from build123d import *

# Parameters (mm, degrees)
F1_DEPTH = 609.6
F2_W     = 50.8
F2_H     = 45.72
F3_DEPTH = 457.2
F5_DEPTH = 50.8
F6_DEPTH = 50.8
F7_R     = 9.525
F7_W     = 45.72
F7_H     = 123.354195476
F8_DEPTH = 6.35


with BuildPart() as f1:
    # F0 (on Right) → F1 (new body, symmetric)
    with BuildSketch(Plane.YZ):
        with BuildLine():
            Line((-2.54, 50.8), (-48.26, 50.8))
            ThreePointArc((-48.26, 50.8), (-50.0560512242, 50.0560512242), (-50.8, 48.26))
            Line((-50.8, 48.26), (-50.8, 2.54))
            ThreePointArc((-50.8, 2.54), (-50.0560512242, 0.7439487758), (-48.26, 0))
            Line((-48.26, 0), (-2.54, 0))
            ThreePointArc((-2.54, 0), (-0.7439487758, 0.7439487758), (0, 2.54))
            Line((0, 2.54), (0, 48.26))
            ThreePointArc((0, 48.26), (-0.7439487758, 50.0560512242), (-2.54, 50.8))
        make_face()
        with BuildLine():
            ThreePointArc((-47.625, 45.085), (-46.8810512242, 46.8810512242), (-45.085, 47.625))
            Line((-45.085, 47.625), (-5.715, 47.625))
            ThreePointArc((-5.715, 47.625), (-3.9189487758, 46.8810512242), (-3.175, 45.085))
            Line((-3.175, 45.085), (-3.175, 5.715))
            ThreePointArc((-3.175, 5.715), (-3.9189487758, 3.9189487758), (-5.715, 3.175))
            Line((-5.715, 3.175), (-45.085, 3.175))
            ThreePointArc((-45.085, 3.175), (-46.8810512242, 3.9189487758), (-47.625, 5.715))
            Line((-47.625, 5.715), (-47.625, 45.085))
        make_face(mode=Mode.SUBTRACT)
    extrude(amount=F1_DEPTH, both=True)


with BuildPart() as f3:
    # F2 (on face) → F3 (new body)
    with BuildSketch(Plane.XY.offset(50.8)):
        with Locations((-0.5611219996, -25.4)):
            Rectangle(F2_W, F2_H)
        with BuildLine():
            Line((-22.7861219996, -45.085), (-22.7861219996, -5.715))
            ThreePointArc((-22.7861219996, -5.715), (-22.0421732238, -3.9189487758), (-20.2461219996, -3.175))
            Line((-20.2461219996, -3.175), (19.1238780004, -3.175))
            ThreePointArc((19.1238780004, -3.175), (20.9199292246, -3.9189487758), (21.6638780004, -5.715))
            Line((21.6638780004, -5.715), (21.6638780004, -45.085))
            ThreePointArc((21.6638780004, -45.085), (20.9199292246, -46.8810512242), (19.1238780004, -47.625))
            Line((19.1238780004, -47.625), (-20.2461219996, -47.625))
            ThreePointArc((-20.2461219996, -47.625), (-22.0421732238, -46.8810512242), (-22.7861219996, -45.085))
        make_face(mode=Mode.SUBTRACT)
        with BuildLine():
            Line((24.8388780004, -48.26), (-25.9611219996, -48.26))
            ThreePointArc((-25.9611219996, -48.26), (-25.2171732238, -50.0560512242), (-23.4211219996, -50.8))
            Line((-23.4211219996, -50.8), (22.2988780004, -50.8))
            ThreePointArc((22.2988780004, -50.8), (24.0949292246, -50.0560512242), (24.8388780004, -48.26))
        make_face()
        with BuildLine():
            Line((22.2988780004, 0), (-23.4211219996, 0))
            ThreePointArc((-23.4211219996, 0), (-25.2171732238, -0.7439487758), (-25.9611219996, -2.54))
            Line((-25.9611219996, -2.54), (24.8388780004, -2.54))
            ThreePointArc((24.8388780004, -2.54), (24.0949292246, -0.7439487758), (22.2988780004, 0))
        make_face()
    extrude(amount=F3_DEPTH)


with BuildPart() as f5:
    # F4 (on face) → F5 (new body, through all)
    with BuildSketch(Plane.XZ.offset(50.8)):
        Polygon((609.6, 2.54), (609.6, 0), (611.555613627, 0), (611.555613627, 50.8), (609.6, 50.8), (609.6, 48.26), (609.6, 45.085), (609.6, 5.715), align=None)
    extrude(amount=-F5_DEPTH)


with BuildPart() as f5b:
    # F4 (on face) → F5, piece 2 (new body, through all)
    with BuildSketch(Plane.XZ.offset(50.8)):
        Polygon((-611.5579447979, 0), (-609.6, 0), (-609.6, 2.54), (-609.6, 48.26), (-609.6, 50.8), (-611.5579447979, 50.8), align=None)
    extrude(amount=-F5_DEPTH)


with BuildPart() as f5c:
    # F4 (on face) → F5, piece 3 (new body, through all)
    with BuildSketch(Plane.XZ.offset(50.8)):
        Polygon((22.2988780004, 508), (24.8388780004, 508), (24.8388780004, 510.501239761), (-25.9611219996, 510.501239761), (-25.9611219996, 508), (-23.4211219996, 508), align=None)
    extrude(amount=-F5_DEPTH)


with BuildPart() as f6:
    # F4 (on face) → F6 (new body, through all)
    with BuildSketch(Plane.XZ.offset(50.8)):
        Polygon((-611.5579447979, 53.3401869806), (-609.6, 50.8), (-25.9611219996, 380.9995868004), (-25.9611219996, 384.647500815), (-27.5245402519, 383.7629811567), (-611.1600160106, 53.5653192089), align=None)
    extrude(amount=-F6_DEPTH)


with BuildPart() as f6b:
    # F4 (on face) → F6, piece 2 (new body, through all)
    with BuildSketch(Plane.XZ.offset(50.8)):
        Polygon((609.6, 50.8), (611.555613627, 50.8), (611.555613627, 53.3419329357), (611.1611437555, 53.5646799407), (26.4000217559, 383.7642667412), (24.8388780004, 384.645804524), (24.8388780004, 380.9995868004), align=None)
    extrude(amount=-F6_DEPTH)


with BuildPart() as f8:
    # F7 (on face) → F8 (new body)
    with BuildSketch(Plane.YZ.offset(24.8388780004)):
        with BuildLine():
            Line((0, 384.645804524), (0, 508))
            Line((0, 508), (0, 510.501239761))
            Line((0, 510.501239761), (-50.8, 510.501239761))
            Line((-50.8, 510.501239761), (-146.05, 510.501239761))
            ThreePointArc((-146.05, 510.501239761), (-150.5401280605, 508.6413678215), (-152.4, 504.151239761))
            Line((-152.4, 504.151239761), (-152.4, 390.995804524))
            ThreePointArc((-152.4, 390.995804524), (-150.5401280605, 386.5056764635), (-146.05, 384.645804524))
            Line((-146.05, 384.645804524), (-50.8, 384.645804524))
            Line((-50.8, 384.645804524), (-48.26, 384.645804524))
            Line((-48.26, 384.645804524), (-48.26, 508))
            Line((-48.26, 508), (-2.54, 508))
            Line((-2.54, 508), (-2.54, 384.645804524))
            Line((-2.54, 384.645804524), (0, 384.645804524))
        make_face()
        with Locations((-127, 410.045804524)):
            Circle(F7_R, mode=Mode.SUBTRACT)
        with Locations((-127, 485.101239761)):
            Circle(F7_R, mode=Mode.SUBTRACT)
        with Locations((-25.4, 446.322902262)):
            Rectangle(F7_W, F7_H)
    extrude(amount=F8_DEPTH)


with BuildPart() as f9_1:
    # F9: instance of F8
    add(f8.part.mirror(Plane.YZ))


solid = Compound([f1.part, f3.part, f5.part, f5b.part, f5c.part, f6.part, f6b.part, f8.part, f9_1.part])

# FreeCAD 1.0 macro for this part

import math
import FreeCAD as App
import Part
import Sketcher
Q = App.Units.Quantity

doc = App.newDocument("Part")
body = doc.addObject("PartDesign::Body", "Body")

sketch1 = body.newObject("Sketcher::SketchObject", "Sketch")
sketch1.AttachmentSupport = (doc.getObject("YZ_Plane"), [""])
sketch1.MapMode = "FlatFace"
sketch1.addGeometry([
    Part.LineSegment(App.Vector(-2.5, 50.8, 0), App.Vector(-48.3, 50.8, 0)),
    Part.ArcOfCircle(Part.Circle(App.Vector(-48.3, 48.3, 0), App.Vector(0, 0, 1), 2.5), math.radians(90), math.radians(180)),
    Part.LineSegment(App.Vector(-50.8, 48.3, 0), App.Vector(-50.8, 2.5, 0)),
    Part.ArcOfCircle(Part.Circle(App.Vector(-48.3, 2.5, 0), App.Vector(0, 0, 1), 2.5), math.radians(180), math.radians(270)),
    Part.LineSegment(App.Vector(-48.3, 0, 0), App.Vector(-2.5, 0, 0)),
    Part.ArcOfCircle(Part.Circle(App.Vector(-2.5, 2.5, 0), App.Vector(0, 0, 1), 2.5), math.radians(-90), math.radians(0)),
    Part.LineSegment(App.Vector(0, 2.5, 0), App.Vector(0, 48.3, 0)),
    Part.ArcOfCircle(Part.Circle(App.Vector(-2.5, 48.3, 0), App.Vector(0, 0, 1), 2.5), math.radians(0), math.radians(90)),
    Part.LineSegment(App.Vector(-47.6, 5.7, 0), App.Vector(-47.6, 45.1, 0)),
    Part.ArcOfCircle(Part.Circle(App.Vector(-45.1, 45.1, 0), App.Vector(0, 0, 1), 2.5), math.radians(90), math.radians(180)),
    Part.LineSegment(App.Vector(-45.1, 47.6, 0), App.Vector(-5.7, 47.6, 0)),
    Part.ArcOfCircle(Part.Circle(App.Vector(-5.7, 45.1, 0), App.Vector(0, 0, 1), 2.5), math.radians(0), math.radians(90)),
    Part.LineSegment(App.Vector(-3.2, 45.1, 0), App.Vector(-3.2, 5.7, 0)),
    Part.ArcOfCircle(Part.Circle(App.Vector(-5.7, 5.7, 0), App.Vector(0, 0, 1), 2.5), math.radians(-90), math.radians(0)),
    Part.LineSegment(App.Vector(-5.7, 3.2, 0), App.Vector(-45.1, 3.2, 0)),
    Part.ArcOfCircle(Part.Circle(App.Vector(-45.1, 5.7, 0), App.Vector(0, 0, 1), 2.5), math.radians(180), math.radians(270)),
], False)
sketch1.addConstraint([
    Sketcher.Constraint("Tangent", 0, 2, 1, 1),
    Sketcher.Constraint("Tangent", 1, 2, 2, 1),
    Sketcher.Constraint("Tangent", 2, 2, 3, 1),
    Sketcher.Constraint("Tangent", 3, 2, 4, 1),
    Sketcher.Constraint("Tangent", 4, 2, 5, 1),
    Sketcher.Constraint("Tangent", 5, 2, 6, 1),
    Sketcher.Constraint("Tangent", 6, 2, 7, 1),
    Sketcher.Constraint("Tangent", 7, 2, 0, 1),
    Sketcher.Constraint("Tangent", 8, 2, 9, 2),
    Sketcher.Constraint("Tangent", 9, 1, 10, 1),
    Sketcher.Constraint("Tangent", 10, 2, 11, 2),
    Sketcher.Constraint("Tangent", 11, 1, 12, 1),
    Sketcher.Constraint("Tangent", 12, 2, 13, 2),
    Sketcher.Constraint("Tangent", 13, 1, 14, 1),
    Sketcher.Constraint("Tangent", 14, 2, 15, 2),
    Sketcher.Constraint("Tangent", 15, 1, 8, 1),
    Sketcher.Constraint("Horizontal", 0),
    Sketcher.Constraint("Vertical", 2),
    Sketcher.Constraint("Horizontal", 4),
    Sketcher.Constraint("Vertical", 6),
    Sketcher.Constraint("Vertical", 8),
    Sketcher.Constraint("Horizontal", 10),
    Sketcher.Constraint("Vertical", 12),
    Sketcher.Constraint("Horizontal", 14),
    Sketcher.Constraint("Equal", 1, 3),
    Sketcher.Constraint("Equal", 3, 5),
    Sketcher.Constraint("Equal", 5, 7),
    Sketcher.Constraint("Equal", 7, 9),
    Sketcher.Constraint("Equal", 9, 11),
    Sketcher.Constraint("Equal", 11, 13),
    Sketcher.Constraint("Equal", 13, 15),
    Sketcher.Constraint("PointOnObject", 3, 2, -1),
    Sketcher.Constraint("PointOnObject", 5, 2, -2),
    Sketcher.Constraint("Equal", 4, 2),
    Sketcher.Constraint("Equal", 14, 8),
    Sketcher.Constraint("Radius", 1, Q("0.1 in")),
    Sketcher.Constraint("DistanceX", 0, 2, 0, 1, Q("1.8 in")),
    Sketcher.Constraint("DistanceX", 10, 1, 10, 2, Q("1.55 in")),
    Sketcher.Constraint("DistanceX", 9, 3, -1, 1, Q("1.775 in")),
    Sketcher.Constraint("DistanceY", -1, 1, 9, 3, Q("1.775 in")),
])
pad1 = body.newObject("PartDesign::Pad", "Pad")
pad1.Profile = sketch1
pad1.Length = Q("48 in")
pad1.Midplane = True
body2 = doc.addObject("PartDesign::Body", "Body001")

sketch2 = body2.newObject("Sketcher::SketchObject", "Sketch001")
sketch2.AttachmentSupport = (doc.getObject("XY_Plane001"), [""])
sketch2.MapMode = "FlatFace"
sketch2.AttachmentOffset = App.Placement(App.Vector(0, 0, 2 * 25.4), App.Rotation())
sketch2.addGeometry([
    Part.LineSegment(App.Vector(-26, -2.5, 0), App.Vector(-26, -48.3, 0)),
    Part.ArcOfCircle(Part.Circle(App.Vector(-23.4, -48.3, 0), App.Vector(0, 0, 1), 2.5), math.radians(180), math.radians(270)),
    Part.LineSegment(App.Vector(-23.4, -50.8, 0), App.Vector(22.3, -50.8, 0)),
    Part.ArcOfCircle(Part.Circle(App.Vector(22.3, -48.3, 0), App.Vector(0, 0, 1), 2.5), math.radians(-90), math.radians(0)),
    Part.LineSegment(App.Vector(24.8, -48.3, 0), App.Vector(24.8, -2.5, 0)),
    Part.ArcOfCircle(Part.Circle(App.Vector(22.3, -2.5, 0), App.Vector(0, 0, 1), 2.5), math.radians(0), math.radians(90)),
    Part.LineSegment(App.Vector(22.3, 0, 0), App.Vector(-23.4, 0, 0)),
    Part.ArcOfCircle(Part.Circle(App.Vector(-23.4, -2.5, 0), App.Vector(0, 0, 1), 2.5), math.radians(90), math.radians(180)),
    Part.ArcOfCircle(Part.Circle(App.Vector(-20.2, -45.1, 0), App.Vector(0, 0, 1), 2.5), math.radians(180), math.radians(270)),
    Part.LineSegment(App.Vector(-22.8, -45.1, 0), App.Vector(-22.8, -5.7, 0)),
    Part.ArcOfCircle(Part.Circle(App.Vector(-20.2, -5.7, 0), App.Vector(0, 0, 1), 2.5), math.radians(90), math.radians(180)),
    Part.LineSegment(App.Vector(-20.2, -3.2, 0), App.Vector(19.1, -3.2, 0)),
    Part.ArcOfCircle(Part.Circle(App.Vector(19.1, -5.7, 0), App.Vector(0, 0, 1), 2.5), math.radians(0), math.radians(90)),
    Part.LineSegment(App.Vector(21.7, -5.7, 0), App.Vector(21.7, -45.1, 0)),
    Part.ArcOfCircle(Part.Circle(App.Vector(19.1, -45.1, 0), App.Vector(0, 0, 1), 2.5), math.radians(-90), math.radians(0)),
    Part.LineSegment(App.Vector(19.1, -47.6, 0), App.Vector(-20.2, -47.6, 0)),
], False)
sketch2.addConstraint([
    Sketcher.Constraint("Tangent", 0, 2, 1, 1),
    Sketcher.Constraint("Tangent", 1, 2, 2, 1),
    Sketcher.Constraint("Tangent", 2, 2, 3, 1),
    Sketcher.Constraint("Tangent", 3, 2, 4, 1),
    Sketcher.Constraint("Tangent", 4, 2, 5, 1),
    Sketcher.Constraint("Tangent", 5, 2, 6, 1),
    Sketcher.Constraint("Tangent", 6, 2, 7, 1),
    Sketcher.Constraint("Tangent", 7, 2, 0, 1),
    Sketcher.Constraint("Tangent", 8, 1, 9, 1),
    Sketcher.Constraint("Tangent", 9, 2, 10, 2),
    Sketcher.Constraint("Tangent", 10, 1, 11, 1),
    Sketcher.Constraint("Tangent", 11, 2, 12, 2),
    Sketcher.Constraint("Tangent", 12, 1, 13, 1),
    Sketcher.Constraint("Tangent", 13, 2, 14, 2),
    Sketcher.Constraint("Tangent", 14, 1, 15, 1),
    Sketcher.Constraint("Tangent", 15, 2, 8, 2),
    Sketcher.Constraint("Vertical", 0),
    Sketcher.Constraint("Horizontal", 2),
    Sketcher.Constraint("Vertical", 4),
    Sketcher.Constraint("Horizontal", 6),
    Sketcher.Constraint("Vertical", 9),
    Sketcher.Constraint("Horizontal", 11),
    Sketcher.Constraint("Vertical", 13),
    Sketcher.Constraint("Horizontal", 15),
    Sketcher.Constraint("Equal", 1, 3),
    Sketcher.Constraint("Equal", 3, 5),
    Sketcher.Constraint("Equal", 5, 7),
    Sketcher.Constraint("Equal", 7, 8),
    Sketcher.Constraint("Equal", 8, 10),
    Sketcher.Constraint("Equal", 10, 12),
    Sketcher.Constraint("Equal", 12, 14),
    Sketcher.Constraint("PointOnObject", 5, 2, -1),
    Sketcher.Constraint("Equal", 6, 0),
    Sketcher.Constraint("Equal", 15, 9),
    Sketcher.Constraint("Radius", 1, Q("0.1 in")),
    Sketcher.Constraint("DistanceX", 2, 1, 2, 2, Q("1.8 in")),
    Sketcher.Constraint("DistanceX", 11, 1, 11, 2, Q("1.55 in")),
    Sketcher.Constraint("DistanceY", 8, 3, -1, 1, Q("1.775 in")),
    Sketcher.Constraint("DistanceX", 1, 3, 8, 3, Q("0.125 in")),
    Sketcher.Constraint("DistanceX", 8, 3, -1, 1, Q("20.246122 mm")),
])
pad2 = body2.newObject("PartDesign::Pad", "Pad001")
pad2.Profile = sketch2
pad2.Length = Q("18 in")
body3 = doc.addObject("PartDesign::Body", "Body002")

sketch3 = body3.newObject("Sketcher::SketchObject", "Sketch002")
sketch3.AttachmentSupport = (doc.getObject("XZ_Plane002"), [""])
sketch3.MapMode = "FlatFace"
sketch3.AttachmentOffset = App.Placement(App.Vector(0, 0, 2 * 25.4), App.Rotation())
sketch3.addGeometry([
    Part.LineSegment(App.Vector(609.6, 0, 0), App.Vector(611.6, 0, 0)),
    Part.LineSegment(App.Vector(611.6, 0, 0), App.Vector(611.6, 50.8, 0)),
    Part.LineSegment(App.Vector(611.6, 50.8, 0), App.Vector(609.6, 50.8, 0)),
    Part.LineSegment(App.Vector(609.6, 50.8, 0), App.Vector(609.6, 0, 0)),
], False)
sketch3.addConstraint([
    Sketcher.Constraint("Coincident", 0, 2, 1, 1),
    Sketcher.Constraint("Coincident", 1, 2, 2, 1),
    Sketcher.Constraint("Coincident", 2, 2, 3, 1),
    Sketcher.Constraint("Coincident", 3, 2, 0, 1),
    Sketcher.Constraint("Horizontal", 0),
    Sketcher.Constraint("Vertical", 1),
    Sketcher.Constraint("Horizontal", 2),
    Sketcher.Constraint("Vertical", 3),
    Sketcher.Constraint("PointOnObject", 0, 2, -1),
    Sketcher.Constraint("DistanceY", 1, 1, 1, 2, Q("2 in")),
    Sketcher.Constraint("DistanceX", -1, 1, 2, 2, Q("24 in")),
    Sketcher.Constraint("DistanceX", 0, 1, 0, 2, Q("1.955614 mm")),
])
pad3 = body3.newObject("PartDesign::Pad", "Pad002")
pad3.Profile = sketch3
pad3.Length = Q("2 in")
pad3.Reversed = True
body4 = doc.addObject("PartDesign::Body", "Body003")

sketch4 = body4.newObject("Sketcher::SketchObject", "Sketch003")
sketch4.AttachmentSupport = (doc.getObject("XZ_Plane003"), [""])
sketch4.MapMode = "FlatFace"
sketch4.AttachmentOffset = App.Placement(App.Vector(0, 0, 2 * 25.4), App.Rotation())
sketch4.addGeometry([
    Part.LineSegment(App.Vector(-611.6, 0, 0), App.Vector(-609.6, 0, 0)),
    Part.LineSegment(App.Vector(-609.6, 0, 0), App.Vector(-609.6, 50.8, 0)),
    Part.LineSegment(App.Vector(-609.6, 50.8, 0), App.Vector(-611.6, 50.8, 0)),
    Part.LineSegment(App.Vector(-611.6, 50.8, 0), App.Vector(-611.6, 0, 0)),
], False)
sketch4.addConstraint([
    Sketcher.Constraint("Coincident", 0, 2, 1, 1),
    Sketcher.Constraint("Coincident", 1, 2, 2, 1),
    Sketcher.Constraint("Coincident", 2, 2, 3, 1),
    Sketcher.Constraint("Coincident", 3, 2, 0, 1),
    Sketcher.Constraint("Horizontal", 0),
    Sketcher.Constraint("Vertical", 1),
    Sketcher.Constraint("Horizontal", 2),
    Sketcher.Constraint("Vertical", 3),
    Sketcher.Constraint("PointOnObject", 0, 2, -1),
    Sketcher.Constraint("DistanceY", 1, 1, 1, 2, Q("2 in")),
    Sketcher.Constraint("DistanceX", 0, 2, -1, 1, Q("24 in")),
    Sketcher.Constraint("DistanceX", 0, 1, 0, 2, Q("1.957945 mm")),
])
pad4 = body4.newObject("PartDesign::Pad", "Pad003")
pad4.Profile = sketch4
pad4.Length = Q("2 in")
pad4.Reversed = True
body5 = doc.addObject("PartDesign::Body", "Body004")

sketch5 = body5.newObject("Sketcher::SketchObject", "Sketch004")
sketch5.AttachmentSupport = (doc.getObject("XZ_Plane004"), [""])
sketch5.MapMode = "FlatFace"
sketch5.AttachmentOffset = App.Placement(App.Vector(0, 0, 2 * 25.4), App.Rotation())
sketch5.addGeometry([
    Part.LineSegment(App.Vector(24.8, 508, 0), App.Vector(24.8, 510.5, 0)),
    Part.LineSegment(App.Vector(24.8, 510.5, 0), App.Vector(-26, 510.5, 0)),
    Part.LineSegment(App.Vector(-26, 510.5, 0), App.Vector(-26, 508, 0)),
    Part.LineSegment(App.Vector(-26, 508, 0), App.Vector(24.8, 508, 0)),
], False)
sketch5.addConstraint([
    Sketcher.Constraint("Coincident", 0, 2, 1, 1),
    Sketcher.Constraint("Coincident", 1, 2, 2, 1),
    Sketcher.Constraint("Coincident", 2, 2, 3, 1),
    Sketcher.Constraint("Coincident", 3, 2, 0, 1),
    Sketcher.Constraint("Vertical", 0),
    Sketcher.Constraint("Horizontal", 1),
    Sketcher.Constraint("Vertical", 2),
    Sketcher.Constraint("Horizontal", 3),
    Sketcher.Constraint("DistanceX", 1, 2, 1, 1, Q("2 in")),
    Sketcher.Constraint("DistanceY", -1, 1, 2, 2, Q("20 in")),
    Sketcher.Constraint("DistanceY", 0, 1, 0, 2, Q("2.50124 mm")),
    Sketcher.Constraint("DistanceX", -1, 1, 0, 2, Q("24.838878 mm")),
])
pad5 = body5.newObject("PartDesign::Pad", "Pad004")
pad5.Profile = sketch5
pad5.Length = Q("2 in")
pad5.Reversed = True
body6 = doc.addObject("PartDesign::Body", "Body005")

sketch6 = body6.newObject("Sketcher::SketchObject", "Sketch005")
sketch6.AttachmentSupport = (doc.getObject("XZ_Plane005"), [""])
sketch6.MapMode = "FlatFace"
sketch6.AttachmentOffset = App.Placement(App.Vector(0, 0, 2 * 25.4), App.Rotation())
sketch6.addGeometry([
    Part.LineSegment(App.Vector(-611.56, 53.34, 0), App.Vector(-609.6, 50.8, 0)),
    Part.LineSegment(App.Vector(-609.6, 50.8, 0), App.Vector(-25.96, 381, 0)),
    Part.LineSegment(App.Vector(-25.96, 381, 0), App.Vector(-25.96, 384.65, 0)),
    Part.LineSegment(App.Vector(-25.96, 384.65, 0), App.Vector(-27.52, 383.76, 0)),
    Part.LineSegment(App.Vector(-27.52, 383.76, 0), App.Vector(-611.16, 53.57, 0)),
    Part.LineSegment(App.Vector(-611.16, 53.57, 0), App.Vector(-611.56, 53.34, 0)),
], False)
sketch6.addConstraint([
    Sketcher.Constraint("Coincident", 0, 2, 1, 1),
    Sketcher.Constraint("Coincident", 1, 2, 2, 1),
    Sketcher.Constraint("Coincident", 2, 2, 3, 1),
    Sketcher.Constraint("Coincident", 3, 2, 4, 1),
    Sketcher.Constraint("Coincident", 4, 2, 5, 1),
    Sketcher.Constraint("Coincident", 5, 2, 0, 1),
    Sketcher.Constraint("Vertical", 2),
    Sketcher.Constraint("Parallel", 1, 3),
    Sketcher.Constraint("Parallel", 3, 4),
    Sketcher.Constraint("Parallel", 4, 5),
    Sketcher.Constraint("DistanceX", 0, 2, -1, 1, Q("24 in")),
    Sketcher.Constraint("DistanceY", -1, 1, 0, 2, Q("2 in")),
    Sketcher.Constraint("Distance", 5, Q("0.018 in")),
    Sketcher.Constraint("DistanceY", -1, 1, 2, 2, Q("384.647501 mm")),
    Sketcher.Constraint("DistanceY", 5, 2, 1, 2, Q("327.6594 mm")),
    Sketcher.Constraint("Distance", 3, Q("1.796288 mm")),
    Sketcher.Constraint("Distance", 4, Q("670.567569 mm")),
    Sketcher.Constraint("DistanceY", 2, 1, 2, 2, Q("3.647914 mm")),
])
pad6 = body6.newObject("PartDesign::Pad", "Pad005")
pad6.Profile = sketch6
pad6.Length = Q("2 in")
pad6.Reversed = True
body7 = doc.addObject("PartDesign::Body", "Body006")

sketch7 = body7.newObject("Sketcher::SketchObject", "Sketch006")
sketch7.AttachmentSupport = (doc.getObject("XZ_Plane006"), [""])
sketch7.MapMode = "FlatFace"
sketch7.AttachmentOffset = App.Placement(App.Vector(0, 0, 2 * 25.4), App.Rotation())
sketch7.addGeometry([
    Part.LineSegment(App.Vector(609.6, 50.8, 0), App.Vector(611.56, 50.8, 0)),
    Part.LineSegment(App.Vector(611.56, 50.8, 0), App.Vector(611.56, 53.34, 0)),
    Part.LineSegment(App.Vector(611.56, 53.34, 0), App.Vector(611.16, 53.56, 0)),
    Part.LineSegment(App.Vector(611.16, 53.56, 0), App.Vector(26.4, 383.76, 0)),
    Part.LineSegment(App.Vector(26.4, 383.76, 0), App.Vector(24.84, 384.65, 0)),
    Part.LineSegment(App.Vector(24.84, 384.65, 0), App.Vector(24.84, 381, 0)),
    Part.LineSegment(App.Vector(24.84, 381, 0), App.Vector(609.6, 50.8, 0)),
], False)
sketch7.addConstraint([
    Sketcher.Constraint("Coincident", 0, 2, 1, 1),
    Sketcher.Constraint("Coincident", 1, 2, 2, 1),
    Sketcher.Constraint("Coincident", 2, 2, 3, 1),
    Sketcher.Constraint("Coincident", 3, 2, 4, 1),
    Sketcher.Constraint("Coincident", 4, 2, 5, 1),
    Sketcher.Constraint("Coincident", 5, 2, 6, 1),
    Sketcher.Constraint("Coincident", 6, 2, 0, 1),
    Sketcher.Constraint("Horizontal", 0),
    Sketcher.Constraint("Vertical", 1),
    Sketcher.Constraint("Vertical", 5),
    Sketcher.Constraint("Parallel", 2, 3),
    Sketcher.Constraint("Parallel", 3, 4),
    Sketcher.Constraint("Parallel", 4, 6),
    Sketcher.Constraint("Equal", 3, 6),
    Sketcher.Constraint("DistanceY", -1, 1, 0, 2, Q("2 in")),
    Sketcher.Constraint("DistanceX", -1, 1, 6, 2, Q("24 in")),
    Sketcher.Constraint("Distance", 4, Q("1.792841 mm")),
    Sketcher.Constraint("DistanceX", 0, 1, 0, 2, Q("1.955614 mm")),
    Sketcher.Constraint("DistanceY", 1, 1, 1, 2, Q("2.541933 mm")),
    Sketcher.Constraint("DistanceX", -1, 1, 3, 2, Q("26.400022 mm")),
    Sketcher.Constraint("DistanceY", 1, 2, 4, 2, Q("331.303872 mm")),
])
pad7 = body7.newObject("PartDesign::Pad", "Pad006")
pad7.Profile = sketch7
pad7.Length = Q("2 in")
pad7.Reversed = True
body8 = doc.addObject("PartDesign::Body", "Body007")

sketch8 = body8.newObject("Sketcher::SketchObject", "Sketch007")
sketch8.AttachmentSupport = (doc.getObject("YZ_Plane007"), [""])
sketch8.MapMode = "FlatFace"
sketch8.AttachmentOffset = App.Placement(App.Vector(0, 0, 24.838878), App.Rotation())
sketch8.addGeometry([
    Part.LineSegment(App.Vector(0, 385, 0), App.Vector(0, 511, 0)),
    Part.LineSegment(App.Vector(0, 511, 0), App.Vector(-146, 511, 0)),
    Part.ArcOfCircle(Part.Circle(App.Vector(-146, 504, 0), App.Vector(0, 0, 1), 6), math.radians(90), math.radians(180)),
    Part.LineSegment(App.Vector(-152, 504, 0), App.Vector(-152, 391, 0)),
    Part.ArcOfCircle(Part.Circle(App.Vector(-146, 391, 0), App.Vector(0, 0, 1), 6), math.radians(180), math.radians(270)),
    Part.LineSegment(App.Vector(-146, 385, 0), App.Vector(0, 385, 0)),
    Part.Circle(App.Vector(-127, 410, 0), App.Vector(0, 0, 1), 10),
    Part.Circle(App.Vector(-127, 485, 0), App.Vector(0, 0, 1), 10),
], False)
sketch8.addConstraint([
    Sketcher.Constraint("Coincident", 0, 2, 1, 1),
    Sketcher.Constraint("Tangent", 1, 2, 2, 1),
    Sketcher.Constraint("Tangent", 2, 2, 3, 1),
    Sketcher.Constraint("Tangent", 3, 2, 4, 1),
    Sketcher.Constraint("Tangent", 4, 2, 5, 1),
    Sketcher.Constraint("Coincident", 5, 2, 0, 1),
    Sketcher.Constraint("Vertical", 0),
    Sketcher.Constraint("Horizontal", 1),
    Sketcher.Constraint("Vertical", 3),
    Sketcher.Constraint("Horizontal", 5),
    Sketcher.Constraint("Equal", 2, 4),
    Sketcher.Constraint("Equal", 6, 7),
    Sketcher.Constraint("PointOnObject", 0, 2, -2),
    Sketcher.Constraint("Vertical", 6, 3, 7, 3),
    Sketcher.Constraint("Diameter", 6, Q("0.75 in")),
    Sketcher.Constraint("Radius", 2, Q("0.25 in")),
    Sketcher.Constraint("DistanceX", 6, 3, -1, 1, Q("5 in")),
    Sketcher.Constraint("DistanceX", 2, 2, -1, 1, Q("6 in")),
    Sketcher.Constraint("DistanceY", 7, 3, 0, 2, Q("1 in")),
    Sketcher.Constraint("DistanceY", 4, 2, 6, 3, Q("1 in")),
    Sketcher.Constraint("DistanceY", 0, 1, 0, 2, Q("125.855435 mm")),
    Sketcher.Constraint("DistanceY", -1, 1, 2, 3, Q("504.15124 mm")),
])
pad8 = body8.newObject("PartDesign::Pad", "Pad007")
pad8.Profile = sketch8
pad8.Length = Q("0.25 in")
body9 = doc.addObject("PartDesign::Body", "Body008")
doc.recompute()

mirroring = doc.addObject("Part::Mirroring", "Mirroring")
mirroring.Source = body8
mirroring.Base = App.Vector(0, 0, 0)
mirroring.Normal = App.Vector(1, 0, 0)
body9.BaseFeature = mirroring
doc.recompute()
mirroring.Visibility = False

doc.recompute()
